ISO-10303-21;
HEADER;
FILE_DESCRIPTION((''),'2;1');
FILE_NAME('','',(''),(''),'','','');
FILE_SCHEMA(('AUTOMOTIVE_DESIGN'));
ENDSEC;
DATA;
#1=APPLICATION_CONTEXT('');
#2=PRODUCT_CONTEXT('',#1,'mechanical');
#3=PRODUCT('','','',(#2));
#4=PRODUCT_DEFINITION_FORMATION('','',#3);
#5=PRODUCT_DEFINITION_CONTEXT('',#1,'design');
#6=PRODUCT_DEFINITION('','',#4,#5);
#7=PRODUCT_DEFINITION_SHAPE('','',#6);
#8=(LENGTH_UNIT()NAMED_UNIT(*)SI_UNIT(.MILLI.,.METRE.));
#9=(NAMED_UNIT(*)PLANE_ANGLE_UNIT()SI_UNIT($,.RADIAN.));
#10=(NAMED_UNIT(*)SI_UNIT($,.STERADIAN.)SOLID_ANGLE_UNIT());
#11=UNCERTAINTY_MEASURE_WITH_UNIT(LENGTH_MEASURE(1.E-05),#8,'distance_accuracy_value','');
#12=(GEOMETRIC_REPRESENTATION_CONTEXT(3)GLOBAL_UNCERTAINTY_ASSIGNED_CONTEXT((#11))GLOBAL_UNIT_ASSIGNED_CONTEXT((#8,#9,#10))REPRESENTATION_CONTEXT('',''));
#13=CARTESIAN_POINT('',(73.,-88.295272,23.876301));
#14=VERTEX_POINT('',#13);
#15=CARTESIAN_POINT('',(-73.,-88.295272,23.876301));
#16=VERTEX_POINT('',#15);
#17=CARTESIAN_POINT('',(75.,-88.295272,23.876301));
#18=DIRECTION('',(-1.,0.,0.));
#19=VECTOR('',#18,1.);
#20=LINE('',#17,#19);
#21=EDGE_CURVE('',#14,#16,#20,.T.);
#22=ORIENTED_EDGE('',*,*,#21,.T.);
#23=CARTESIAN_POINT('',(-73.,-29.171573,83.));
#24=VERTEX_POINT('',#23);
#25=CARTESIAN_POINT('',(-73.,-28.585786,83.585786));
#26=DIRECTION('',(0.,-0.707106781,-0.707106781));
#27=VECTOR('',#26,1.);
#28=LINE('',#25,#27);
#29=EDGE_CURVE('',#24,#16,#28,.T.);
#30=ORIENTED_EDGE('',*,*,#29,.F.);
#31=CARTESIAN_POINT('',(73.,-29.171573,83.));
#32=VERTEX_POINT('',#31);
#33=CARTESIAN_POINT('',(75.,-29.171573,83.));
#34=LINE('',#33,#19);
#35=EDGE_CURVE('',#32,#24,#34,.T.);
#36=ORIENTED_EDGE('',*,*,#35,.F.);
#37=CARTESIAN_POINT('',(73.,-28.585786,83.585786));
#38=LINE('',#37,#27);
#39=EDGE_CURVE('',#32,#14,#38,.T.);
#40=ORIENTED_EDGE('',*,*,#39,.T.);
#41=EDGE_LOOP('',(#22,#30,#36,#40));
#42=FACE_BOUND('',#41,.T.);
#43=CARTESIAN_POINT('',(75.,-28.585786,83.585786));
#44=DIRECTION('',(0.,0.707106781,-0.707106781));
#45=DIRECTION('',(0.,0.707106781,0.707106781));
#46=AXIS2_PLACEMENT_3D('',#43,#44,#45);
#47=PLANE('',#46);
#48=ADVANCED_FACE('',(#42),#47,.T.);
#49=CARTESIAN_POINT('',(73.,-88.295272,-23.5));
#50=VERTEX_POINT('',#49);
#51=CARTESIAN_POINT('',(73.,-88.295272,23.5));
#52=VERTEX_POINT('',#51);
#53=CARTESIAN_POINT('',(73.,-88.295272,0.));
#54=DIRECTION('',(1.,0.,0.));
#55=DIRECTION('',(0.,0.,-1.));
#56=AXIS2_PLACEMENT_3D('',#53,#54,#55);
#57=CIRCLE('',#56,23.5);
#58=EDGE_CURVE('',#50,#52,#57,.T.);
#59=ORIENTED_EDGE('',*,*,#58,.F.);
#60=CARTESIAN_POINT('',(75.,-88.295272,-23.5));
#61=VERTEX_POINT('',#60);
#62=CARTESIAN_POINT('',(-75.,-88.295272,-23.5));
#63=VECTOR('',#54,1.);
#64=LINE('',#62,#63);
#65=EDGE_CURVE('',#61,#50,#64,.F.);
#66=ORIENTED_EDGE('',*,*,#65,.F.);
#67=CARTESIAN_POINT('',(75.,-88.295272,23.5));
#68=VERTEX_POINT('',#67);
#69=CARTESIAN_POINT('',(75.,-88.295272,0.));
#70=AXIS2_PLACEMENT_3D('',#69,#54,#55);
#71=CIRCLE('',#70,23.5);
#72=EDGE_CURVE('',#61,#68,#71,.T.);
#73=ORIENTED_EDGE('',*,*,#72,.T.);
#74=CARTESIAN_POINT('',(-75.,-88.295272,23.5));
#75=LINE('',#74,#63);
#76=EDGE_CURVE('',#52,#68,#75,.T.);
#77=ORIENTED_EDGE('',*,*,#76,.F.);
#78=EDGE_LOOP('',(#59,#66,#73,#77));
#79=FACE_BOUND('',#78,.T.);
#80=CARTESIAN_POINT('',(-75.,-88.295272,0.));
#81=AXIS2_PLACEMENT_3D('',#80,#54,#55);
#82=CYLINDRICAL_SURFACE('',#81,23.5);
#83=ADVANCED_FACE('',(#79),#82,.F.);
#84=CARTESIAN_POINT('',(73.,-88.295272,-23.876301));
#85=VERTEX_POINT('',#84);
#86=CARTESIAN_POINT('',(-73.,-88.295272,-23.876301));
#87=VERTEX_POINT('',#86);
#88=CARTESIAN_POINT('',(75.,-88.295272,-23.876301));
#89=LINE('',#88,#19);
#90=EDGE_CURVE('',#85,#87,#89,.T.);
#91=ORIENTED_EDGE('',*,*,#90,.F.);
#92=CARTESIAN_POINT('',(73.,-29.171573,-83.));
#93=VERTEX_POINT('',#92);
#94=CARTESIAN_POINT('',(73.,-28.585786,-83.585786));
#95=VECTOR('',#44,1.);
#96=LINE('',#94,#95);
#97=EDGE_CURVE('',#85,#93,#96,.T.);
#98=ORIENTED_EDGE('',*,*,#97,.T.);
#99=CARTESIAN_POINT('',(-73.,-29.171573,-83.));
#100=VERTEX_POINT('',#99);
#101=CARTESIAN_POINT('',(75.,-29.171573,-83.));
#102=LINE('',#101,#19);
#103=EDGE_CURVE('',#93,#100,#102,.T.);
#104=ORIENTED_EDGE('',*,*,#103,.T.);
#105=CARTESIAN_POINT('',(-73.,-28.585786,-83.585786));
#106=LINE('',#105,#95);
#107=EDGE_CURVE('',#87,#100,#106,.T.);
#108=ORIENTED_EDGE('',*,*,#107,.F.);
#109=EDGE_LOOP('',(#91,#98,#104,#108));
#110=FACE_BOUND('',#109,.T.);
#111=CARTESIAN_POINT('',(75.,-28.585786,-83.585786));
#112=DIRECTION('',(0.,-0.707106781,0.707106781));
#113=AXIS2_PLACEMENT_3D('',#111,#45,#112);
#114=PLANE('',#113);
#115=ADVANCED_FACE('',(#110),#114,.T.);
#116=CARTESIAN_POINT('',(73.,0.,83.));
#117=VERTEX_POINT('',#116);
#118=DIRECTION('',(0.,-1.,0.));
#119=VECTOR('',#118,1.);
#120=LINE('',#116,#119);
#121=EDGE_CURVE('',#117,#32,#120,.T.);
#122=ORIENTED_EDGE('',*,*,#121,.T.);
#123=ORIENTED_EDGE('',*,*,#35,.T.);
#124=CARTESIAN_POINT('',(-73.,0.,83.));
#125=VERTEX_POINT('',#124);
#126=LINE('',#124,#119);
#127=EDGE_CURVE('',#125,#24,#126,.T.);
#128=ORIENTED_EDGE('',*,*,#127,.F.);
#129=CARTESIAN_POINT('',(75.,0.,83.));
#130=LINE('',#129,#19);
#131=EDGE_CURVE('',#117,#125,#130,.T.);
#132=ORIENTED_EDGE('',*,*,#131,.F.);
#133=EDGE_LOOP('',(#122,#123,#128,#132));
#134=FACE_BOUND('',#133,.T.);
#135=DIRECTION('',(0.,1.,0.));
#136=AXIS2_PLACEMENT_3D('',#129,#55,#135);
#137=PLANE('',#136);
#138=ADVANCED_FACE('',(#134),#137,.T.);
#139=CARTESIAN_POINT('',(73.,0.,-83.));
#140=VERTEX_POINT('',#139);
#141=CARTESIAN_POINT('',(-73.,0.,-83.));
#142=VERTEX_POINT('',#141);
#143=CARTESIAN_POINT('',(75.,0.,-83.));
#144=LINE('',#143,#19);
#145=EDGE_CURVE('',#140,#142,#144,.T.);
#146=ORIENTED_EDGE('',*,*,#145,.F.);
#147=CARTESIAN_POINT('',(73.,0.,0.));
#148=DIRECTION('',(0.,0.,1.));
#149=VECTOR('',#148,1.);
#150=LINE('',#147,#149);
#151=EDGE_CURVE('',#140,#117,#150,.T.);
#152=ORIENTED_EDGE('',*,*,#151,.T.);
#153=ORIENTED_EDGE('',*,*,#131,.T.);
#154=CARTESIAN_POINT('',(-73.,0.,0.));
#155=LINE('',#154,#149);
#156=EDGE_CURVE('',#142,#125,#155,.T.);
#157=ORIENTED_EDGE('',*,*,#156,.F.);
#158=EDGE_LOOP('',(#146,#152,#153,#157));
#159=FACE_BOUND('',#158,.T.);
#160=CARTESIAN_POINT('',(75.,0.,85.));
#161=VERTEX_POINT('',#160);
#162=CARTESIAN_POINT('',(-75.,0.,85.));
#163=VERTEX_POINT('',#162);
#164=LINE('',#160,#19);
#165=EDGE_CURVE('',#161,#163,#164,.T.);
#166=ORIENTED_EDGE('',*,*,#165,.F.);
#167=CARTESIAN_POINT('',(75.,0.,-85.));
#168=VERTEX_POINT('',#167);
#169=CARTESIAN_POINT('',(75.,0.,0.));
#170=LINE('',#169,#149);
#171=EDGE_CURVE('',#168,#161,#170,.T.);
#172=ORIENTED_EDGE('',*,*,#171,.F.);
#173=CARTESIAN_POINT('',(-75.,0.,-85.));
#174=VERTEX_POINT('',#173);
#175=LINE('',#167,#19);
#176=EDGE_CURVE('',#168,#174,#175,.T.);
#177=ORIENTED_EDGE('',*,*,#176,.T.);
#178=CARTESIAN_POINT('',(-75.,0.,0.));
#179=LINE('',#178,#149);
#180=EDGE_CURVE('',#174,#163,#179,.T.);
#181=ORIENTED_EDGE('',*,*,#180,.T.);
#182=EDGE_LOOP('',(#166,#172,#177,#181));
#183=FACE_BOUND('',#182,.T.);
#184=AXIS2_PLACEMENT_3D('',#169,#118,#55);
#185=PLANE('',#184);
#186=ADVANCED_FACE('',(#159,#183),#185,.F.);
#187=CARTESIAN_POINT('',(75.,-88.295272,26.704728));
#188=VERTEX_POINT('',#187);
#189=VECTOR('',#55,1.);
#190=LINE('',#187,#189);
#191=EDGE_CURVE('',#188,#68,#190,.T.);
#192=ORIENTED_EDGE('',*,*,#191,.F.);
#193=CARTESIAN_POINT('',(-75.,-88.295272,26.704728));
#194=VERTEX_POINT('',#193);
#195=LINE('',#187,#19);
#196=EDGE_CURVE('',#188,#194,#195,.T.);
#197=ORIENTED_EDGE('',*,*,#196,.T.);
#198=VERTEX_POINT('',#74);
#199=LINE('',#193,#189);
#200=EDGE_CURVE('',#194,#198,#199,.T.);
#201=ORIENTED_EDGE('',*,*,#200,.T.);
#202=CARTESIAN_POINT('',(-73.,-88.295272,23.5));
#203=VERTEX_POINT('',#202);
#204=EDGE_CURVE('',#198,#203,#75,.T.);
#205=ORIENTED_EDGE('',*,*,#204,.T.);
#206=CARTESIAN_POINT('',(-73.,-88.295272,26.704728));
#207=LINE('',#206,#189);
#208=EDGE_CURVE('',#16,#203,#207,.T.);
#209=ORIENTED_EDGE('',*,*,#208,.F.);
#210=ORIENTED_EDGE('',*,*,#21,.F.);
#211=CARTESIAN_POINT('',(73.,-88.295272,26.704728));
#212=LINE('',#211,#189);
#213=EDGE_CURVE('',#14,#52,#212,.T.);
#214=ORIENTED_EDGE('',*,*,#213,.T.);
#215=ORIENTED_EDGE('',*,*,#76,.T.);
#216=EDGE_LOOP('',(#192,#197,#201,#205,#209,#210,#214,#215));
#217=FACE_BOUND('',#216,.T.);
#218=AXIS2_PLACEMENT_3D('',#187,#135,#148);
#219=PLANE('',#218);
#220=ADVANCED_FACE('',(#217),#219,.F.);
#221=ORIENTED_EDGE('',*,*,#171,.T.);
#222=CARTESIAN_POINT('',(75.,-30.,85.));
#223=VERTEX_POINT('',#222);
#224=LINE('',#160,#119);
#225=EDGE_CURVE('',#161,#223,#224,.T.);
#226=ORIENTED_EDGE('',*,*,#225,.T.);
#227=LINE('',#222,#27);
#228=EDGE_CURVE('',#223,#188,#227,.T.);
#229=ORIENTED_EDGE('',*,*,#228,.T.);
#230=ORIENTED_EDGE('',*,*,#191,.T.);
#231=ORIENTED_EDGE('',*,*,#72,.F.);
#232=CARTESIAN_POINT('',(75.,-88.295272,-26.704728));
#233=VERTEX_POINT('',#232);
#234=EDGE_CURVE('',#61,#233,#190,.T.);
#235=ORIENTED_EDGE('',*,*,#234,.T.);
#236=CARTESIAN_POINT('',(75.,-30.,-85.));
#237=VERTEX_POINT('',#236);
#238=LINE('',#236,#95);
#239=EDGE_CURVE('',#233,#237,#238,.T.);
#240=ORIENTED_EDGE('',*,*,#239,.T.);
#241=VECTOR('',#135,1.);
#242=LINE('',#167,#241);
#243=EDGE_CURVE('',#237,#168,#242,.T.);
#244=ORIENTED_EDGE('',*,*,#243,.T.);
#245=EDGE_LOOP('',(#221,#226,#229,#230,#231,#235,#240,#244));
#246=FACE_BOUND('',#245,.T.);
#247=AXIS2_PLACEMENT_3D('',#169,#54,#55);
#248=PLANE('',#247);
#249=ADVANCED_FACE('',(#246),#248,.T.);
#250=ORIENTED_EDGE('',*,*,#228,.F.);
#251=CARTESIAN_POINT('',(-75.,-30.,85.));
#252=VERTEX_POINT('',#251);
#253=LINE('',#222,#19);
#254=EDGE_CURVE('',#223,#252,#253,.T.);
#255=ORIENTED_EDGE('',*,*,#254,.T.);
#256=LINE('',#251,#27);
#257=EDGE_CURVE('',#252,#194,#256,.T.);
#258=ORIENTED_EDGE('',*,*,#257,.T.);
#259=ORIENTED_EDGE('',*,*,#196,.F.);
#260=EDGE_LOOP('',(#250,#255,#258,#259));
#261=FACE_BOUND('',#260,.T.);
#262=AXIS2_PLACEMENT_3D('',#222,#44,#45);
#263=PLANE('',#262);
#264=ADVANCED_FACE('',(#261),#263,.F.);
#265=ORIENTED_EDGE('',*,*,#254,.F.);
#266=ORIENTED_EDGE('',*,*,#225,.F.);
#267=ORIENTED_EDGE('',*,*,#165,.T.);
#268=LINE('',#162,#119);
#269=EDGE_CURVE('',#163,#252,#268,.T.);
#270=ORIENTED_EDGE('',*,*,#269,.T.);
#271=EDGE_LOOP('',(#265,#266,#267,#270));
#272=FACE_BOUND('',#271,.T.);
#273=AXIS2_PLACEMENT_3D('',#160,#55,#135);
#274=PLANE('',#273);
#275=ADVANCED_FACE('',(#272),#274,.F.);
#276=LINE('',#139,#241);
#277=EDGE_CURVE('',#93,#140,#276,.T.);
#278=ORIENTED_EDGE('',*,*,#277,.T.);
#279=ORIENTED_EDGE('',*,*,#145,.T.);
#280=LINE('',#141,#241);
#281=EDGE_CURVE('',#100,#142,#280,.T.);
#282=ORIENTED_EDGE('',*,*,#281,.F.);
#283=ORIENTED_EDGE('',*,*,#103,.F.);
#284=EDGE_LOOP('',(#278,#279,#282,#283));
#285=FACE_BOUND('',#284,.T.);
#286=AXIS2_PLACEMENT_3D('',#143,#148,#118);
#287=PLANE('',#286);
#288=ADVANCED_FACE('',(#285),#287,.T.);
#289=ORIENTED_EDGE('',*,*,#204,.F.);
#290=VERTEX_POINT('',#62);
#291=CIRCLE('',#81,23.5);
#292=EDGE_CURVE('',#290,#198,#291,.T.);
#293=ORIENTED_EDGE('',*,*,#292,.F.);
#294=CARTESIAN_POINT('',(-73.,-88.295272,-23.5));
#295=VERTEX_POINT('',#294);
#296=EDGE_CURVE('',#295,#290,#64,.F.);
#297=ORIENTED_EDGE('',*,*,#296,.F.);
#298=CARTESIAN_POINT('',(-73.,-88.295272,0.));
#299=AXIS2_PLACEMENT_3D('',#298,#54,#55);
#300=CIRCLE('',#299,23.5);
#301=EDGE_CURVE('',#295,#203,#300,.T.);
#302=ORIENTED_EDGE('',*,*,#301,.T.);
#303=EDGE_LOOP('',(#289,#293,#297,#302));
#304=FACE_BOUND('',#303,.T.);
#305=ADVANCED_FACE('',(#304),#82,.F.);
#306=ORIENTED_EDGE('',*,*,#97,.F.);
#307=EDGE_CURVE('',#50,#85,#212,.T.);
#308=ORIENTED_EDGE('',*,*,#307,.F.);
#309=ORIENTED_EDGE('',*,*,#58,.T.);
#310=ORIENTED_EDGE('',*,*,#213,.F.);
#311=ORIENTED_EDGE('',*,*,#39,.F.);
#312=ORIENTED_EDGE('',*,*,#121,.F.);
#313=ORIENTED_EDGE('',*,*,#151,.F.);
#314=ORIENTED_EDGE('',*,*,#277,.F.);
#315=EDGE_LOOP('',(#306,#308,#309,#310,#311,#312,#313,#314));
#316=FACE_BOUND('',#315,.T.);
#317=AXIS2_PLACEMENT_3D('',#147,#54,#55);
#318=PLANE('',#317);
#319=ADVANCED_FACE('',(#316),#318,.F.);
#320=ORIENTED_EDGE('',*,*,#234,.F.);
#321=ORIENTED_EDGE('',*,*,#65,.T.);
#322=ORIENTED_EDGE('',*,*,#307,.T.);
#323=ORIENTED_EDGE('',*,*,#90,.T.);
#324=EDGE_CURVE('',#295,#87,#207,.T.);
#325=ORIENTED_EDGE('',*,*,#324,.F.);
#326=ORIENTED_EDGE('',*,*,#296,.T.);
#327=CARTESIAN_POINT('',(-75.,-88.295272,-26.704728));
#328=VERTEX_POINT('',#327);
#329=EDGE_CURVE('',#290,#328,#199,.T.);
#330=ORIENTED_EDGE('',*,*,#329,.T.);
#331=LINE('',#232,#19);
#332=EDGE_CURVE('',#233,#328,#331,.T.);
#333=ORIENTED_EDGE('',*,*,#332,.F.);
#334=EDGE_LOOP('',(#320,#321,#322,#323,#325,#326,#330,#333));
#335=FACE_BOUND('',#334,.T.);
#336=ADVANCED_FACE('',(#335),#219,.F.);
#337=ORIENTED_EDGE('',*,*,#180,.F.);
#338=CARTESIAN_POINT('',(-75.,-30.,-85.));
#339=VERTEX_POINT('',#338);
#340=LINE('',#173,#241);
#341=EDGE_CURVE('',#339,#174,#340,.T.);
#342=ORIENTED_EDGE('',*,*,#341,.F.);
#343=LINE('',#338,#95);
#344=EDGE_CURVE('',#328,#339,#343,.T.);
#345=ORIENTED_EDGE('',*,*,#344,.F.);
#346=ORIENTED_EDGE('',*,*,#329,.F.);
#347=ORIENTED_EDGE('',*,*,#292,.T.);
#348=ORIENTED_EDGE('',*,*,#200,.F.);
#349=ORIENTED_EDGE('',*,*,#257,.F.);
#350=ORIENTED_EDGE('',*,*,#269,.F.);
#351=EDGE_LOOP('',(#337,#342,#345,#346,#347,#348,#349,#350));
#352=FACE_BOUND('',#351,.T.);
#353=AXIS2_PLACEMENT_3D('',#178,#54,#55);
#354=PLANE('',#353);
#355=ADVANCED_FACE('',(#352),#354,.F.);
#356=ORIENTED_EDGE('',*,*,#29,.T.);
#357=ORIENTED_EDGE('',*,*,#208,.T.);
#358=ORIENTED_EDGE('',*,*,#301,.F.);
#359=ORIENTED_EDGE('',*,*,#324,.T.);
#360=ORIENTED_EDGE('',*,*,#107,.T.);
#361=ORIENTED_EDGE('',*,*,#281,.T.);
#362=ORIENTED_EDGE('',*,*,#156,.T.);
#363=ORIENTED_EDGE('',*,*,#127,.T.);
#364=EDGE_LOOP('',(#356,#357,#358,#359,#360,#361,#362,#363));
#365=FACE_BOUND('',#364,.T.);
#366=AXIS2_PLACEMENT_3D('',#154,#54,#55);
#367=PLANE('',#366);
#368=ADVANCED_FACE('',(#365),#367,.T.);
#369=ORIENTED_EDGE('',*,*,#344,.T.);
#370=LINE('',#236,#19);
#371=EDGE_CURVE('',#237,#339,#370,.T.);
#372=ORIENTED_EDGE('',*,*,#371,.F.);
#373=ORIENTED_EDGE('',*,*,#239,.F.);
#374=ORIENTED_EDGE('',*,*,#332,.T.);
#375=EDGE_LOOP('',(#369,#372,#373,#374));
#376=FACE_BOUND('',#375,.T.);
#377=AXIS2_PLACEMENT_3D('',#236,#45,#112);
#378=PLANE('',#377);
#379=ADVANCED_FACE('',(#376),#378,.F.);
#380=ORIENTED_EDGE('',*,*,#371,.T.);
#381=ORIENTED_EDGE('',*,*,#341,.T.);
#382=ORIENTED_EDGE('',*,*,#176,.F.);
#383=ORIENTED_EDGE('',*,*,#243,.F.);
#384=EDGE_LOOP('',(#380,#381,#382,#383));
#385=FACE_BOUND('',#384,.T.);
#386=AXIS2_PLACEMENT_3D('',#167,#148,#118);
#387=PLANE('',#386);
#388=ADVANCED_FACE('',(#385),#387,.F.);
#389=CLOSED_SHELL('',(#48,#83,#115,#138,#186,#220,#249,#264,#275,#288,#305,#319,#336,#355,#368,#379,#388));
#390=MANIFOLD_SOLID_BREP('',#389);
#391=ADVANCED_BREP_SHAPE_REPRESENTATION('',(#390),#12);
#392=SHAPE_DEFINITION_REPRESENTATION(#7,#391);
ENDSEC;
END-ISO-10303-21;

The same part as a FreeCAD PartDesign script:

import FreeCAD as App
import Part
import Sketcher

V = App.Vector
Q = App.Units.Quantity


def faces_at(feature, points):
    """Names of the faces that lie closest to the given points."""
    faces = feature.Shape.Faces
    near = lambda p: min(range(len(faces)), key=lambda i: faces[i].distToShape(Part.Vertex(*p))[0])
    return sorted({f"Face{near(p) + 1}" for p in points})


def add_polygon(sketch, points):
    """Adds a closed chain of lines whose ends are joined by coincident constraints."""
    first, n = sketch.GeometryCount, len(points)
    for a, b in zip(points, points[1:] + points[:1]):
        sketch.addGeometry(Part.LineSegment(App.Vector(*a, 0), App.Vector(*b, 0)), False)
    for i in range(n):
        sketch.addConstraint(Sketcher.Constraint("Coincident", first + i, 2, first + (i + 1) % n, 1))

doc = App.newDocument("Part")
params = doc.addObject("Spreadsheet::Sheet", "Params")
for row, (alias, value) in enumerate([
    ("sketch1_width", "30 mm"),
    ("sketch1_height", "170 mm"),
    ("pad1_length", "150 mm"),
    ("thickness_wall", "2 mm"),
    ("sketch2_diameter", "47 mm"),
], start=1):
    params.set(f"A{row}", alias)
    params.set(f"B{row}", "=" + value)
    params.setAlias(f"B{row}", alias)

body = doc.addObject("PartDesign::Body", "Body")

# Sketch on YZ plane
sketch1 = doc.addObject("Sketcher::SketchObject", "Sketch")
body.addObject(sketch1)
sketch1.AttachmentSupport = (doc.YZ_Plane, [""])
sketch1.MapMode = "FlatFace"
add_polygon(sketch1, [(0, -85), (0, 85), (-30, 85), (-88, 27), (-88, -27), (-30, -85)])  # lines 0-5
sketch1.addConstraint([
    Sketcher.Constraint("Vertical", 0),
    Sketcher.Constraint("Horizontal", 1),
    Sketcher.Constraint("Vertical", 3),
    Sketcher.Constraint("Horizontal", 5),
    Sketcher.Constraint("Symmetric", 0, 2, 5, 2, -1, 1),
    Sketcher.Constraint("Perpendicular", 2, 4),
    Sketcher.Constraint("Vertical", 1, 2, 4, 2),
    Sketcher.Constraint("Equal", 2, 4),
    Sketcher.Constraint("DistanceX", 1, 2, 1, 1, Q("30 mm")),
    Sketcher.Constraint("DistanceY", 0, 1, 0, 2, Q("170 mm")),
    Sketcher.Constraint("DistanceY", 3, 2, 3, 1, Q("53.409456 mm")),
])
sketch1.setExpression("Constraints[14]", "Params.sketch1_width")
sketch1.setExpression("Constraints[15]", "Params.sketch1_height")
pad1 = doc.addObject("PartDesign::Pad", "Pad")
body.addObject(pad1)
pad1.Profile = sketch1
pad1.setExpression("Length", "Params.pad1_length")
pad1.Midplane = True
doc.recompute()

thickness = doc.addObject("PartDesign::Thickness", "Thickness")
body.addObject(thickness)
thickness.Base = (pad1, faces_at(pad1, [(0, 0, 0), (0, -88.295, 0)]))
thickness.setExpression("Value", "Params.thickness_wall")
thickness.Reversed = True
thickness.Join = "Intersection"

# Sketch on YZ plane
sketch2 = doc.addObject("Sketcher::SketchObject", "Sketch001")
body.addObject(sketch2)
sketch2.AttachmentSupport = (doc.YZ_Plane, [""])
sketch2.MapMode = "FlatFace"
sketch2.AttachmentOffset = App.Placement(V(0, 0, 75), App.Rotation())
sketch2.addGeometry(Part.Circle(V(-88, 0, 0), V(0, 0, 1), 24), False)
sketch2.addConstraint([
    Sketcher.Constraint("PointOnObject", 0, 3, -1),
    Sketcher.Constraint("Diameter", 0, Q("47 mm")),
    Sketcher.Constraint("DistanceX", 0, 3, -1, 1, Q("88.295272 mm")),
])
sketch2.setExpression("Constraints[1]", "Params.sketch2_diameter")
pocket1 = doc.addObject("PartDesign::Pocket", "Pocket")
body.addObject(pocket1)
pocket1.Profile = sketch2
pocket1.Type = "ThroughAll"

doc.recompute()
